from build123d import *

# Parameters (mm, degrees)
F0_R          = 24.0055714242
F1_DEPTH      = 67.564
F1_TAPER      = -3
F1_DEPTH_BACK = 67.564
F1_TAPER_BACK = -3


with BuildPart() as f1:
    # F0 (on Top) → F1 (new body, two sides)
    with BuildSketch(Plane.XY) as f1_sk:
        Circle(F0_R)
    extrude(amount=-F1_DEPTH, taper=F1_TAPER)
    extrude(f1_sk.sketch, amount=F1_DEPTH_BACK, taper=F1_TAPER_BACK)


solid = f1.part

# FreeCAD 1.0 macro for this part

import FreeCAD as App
import Part
import Sketcher
Q = App.Units.Quantity

doc = App.newDocument("Part")
params = doc.addObject("Spreadsheet::Sheet", "Params")
for row, (alias, value) in enumerate([
    ("pad1_length", "2.66 in"),
    ("pad1_taper", "3 deg"),
    ("pad2_length", "2.66 in"),
    ("pad2_taper", "3 deg"),
], start=1):
    params.set(f"A{row}", alias)
    params.set(f"B{row}", "=" + value)
    params.setAlias(f"B{row}", alias)

body = doc.addObject("PartDesign::Body", "Body")

# Sketch on XY plane
sketch1 = body.newObject("Sketcher::SketchObject", "Sketch")
sketch1.AttachmentSupport = (doc.getObject("XY_Plane"), [""])
sketch1.MapMode = "FlatFace"
sketch1.addGeometry(Part.Circle(App.Vector(0, 0, 0), App.Vector(0, 0, 1), 24), False)
sketch1.addConstraint([
    Sketcher.Constraint("Coincident", 0, 3, -1, 1),
    Sketcher.Constraint("Diameter", 0, Q("48.011143 mm")),
])
pad1 = body.newObject("PartDesign::Pad", "Pad")
pad1.Profile = sketch1
pad1.setExpression("Length", "Params.pad1_length")
pad1.Reversed = True
pad1.setExpression("TaperAngle", "Params.pad1_taper")
pad2 = body.newObject("PartDesign::Pad", "Pad001")
pad2.Profile = sketch1
pad2.setExpression("Length", "Params.pad2_length")
pad2.setExpression("TaperAngle", "Params.pad2_taper")

doc.recompute()
